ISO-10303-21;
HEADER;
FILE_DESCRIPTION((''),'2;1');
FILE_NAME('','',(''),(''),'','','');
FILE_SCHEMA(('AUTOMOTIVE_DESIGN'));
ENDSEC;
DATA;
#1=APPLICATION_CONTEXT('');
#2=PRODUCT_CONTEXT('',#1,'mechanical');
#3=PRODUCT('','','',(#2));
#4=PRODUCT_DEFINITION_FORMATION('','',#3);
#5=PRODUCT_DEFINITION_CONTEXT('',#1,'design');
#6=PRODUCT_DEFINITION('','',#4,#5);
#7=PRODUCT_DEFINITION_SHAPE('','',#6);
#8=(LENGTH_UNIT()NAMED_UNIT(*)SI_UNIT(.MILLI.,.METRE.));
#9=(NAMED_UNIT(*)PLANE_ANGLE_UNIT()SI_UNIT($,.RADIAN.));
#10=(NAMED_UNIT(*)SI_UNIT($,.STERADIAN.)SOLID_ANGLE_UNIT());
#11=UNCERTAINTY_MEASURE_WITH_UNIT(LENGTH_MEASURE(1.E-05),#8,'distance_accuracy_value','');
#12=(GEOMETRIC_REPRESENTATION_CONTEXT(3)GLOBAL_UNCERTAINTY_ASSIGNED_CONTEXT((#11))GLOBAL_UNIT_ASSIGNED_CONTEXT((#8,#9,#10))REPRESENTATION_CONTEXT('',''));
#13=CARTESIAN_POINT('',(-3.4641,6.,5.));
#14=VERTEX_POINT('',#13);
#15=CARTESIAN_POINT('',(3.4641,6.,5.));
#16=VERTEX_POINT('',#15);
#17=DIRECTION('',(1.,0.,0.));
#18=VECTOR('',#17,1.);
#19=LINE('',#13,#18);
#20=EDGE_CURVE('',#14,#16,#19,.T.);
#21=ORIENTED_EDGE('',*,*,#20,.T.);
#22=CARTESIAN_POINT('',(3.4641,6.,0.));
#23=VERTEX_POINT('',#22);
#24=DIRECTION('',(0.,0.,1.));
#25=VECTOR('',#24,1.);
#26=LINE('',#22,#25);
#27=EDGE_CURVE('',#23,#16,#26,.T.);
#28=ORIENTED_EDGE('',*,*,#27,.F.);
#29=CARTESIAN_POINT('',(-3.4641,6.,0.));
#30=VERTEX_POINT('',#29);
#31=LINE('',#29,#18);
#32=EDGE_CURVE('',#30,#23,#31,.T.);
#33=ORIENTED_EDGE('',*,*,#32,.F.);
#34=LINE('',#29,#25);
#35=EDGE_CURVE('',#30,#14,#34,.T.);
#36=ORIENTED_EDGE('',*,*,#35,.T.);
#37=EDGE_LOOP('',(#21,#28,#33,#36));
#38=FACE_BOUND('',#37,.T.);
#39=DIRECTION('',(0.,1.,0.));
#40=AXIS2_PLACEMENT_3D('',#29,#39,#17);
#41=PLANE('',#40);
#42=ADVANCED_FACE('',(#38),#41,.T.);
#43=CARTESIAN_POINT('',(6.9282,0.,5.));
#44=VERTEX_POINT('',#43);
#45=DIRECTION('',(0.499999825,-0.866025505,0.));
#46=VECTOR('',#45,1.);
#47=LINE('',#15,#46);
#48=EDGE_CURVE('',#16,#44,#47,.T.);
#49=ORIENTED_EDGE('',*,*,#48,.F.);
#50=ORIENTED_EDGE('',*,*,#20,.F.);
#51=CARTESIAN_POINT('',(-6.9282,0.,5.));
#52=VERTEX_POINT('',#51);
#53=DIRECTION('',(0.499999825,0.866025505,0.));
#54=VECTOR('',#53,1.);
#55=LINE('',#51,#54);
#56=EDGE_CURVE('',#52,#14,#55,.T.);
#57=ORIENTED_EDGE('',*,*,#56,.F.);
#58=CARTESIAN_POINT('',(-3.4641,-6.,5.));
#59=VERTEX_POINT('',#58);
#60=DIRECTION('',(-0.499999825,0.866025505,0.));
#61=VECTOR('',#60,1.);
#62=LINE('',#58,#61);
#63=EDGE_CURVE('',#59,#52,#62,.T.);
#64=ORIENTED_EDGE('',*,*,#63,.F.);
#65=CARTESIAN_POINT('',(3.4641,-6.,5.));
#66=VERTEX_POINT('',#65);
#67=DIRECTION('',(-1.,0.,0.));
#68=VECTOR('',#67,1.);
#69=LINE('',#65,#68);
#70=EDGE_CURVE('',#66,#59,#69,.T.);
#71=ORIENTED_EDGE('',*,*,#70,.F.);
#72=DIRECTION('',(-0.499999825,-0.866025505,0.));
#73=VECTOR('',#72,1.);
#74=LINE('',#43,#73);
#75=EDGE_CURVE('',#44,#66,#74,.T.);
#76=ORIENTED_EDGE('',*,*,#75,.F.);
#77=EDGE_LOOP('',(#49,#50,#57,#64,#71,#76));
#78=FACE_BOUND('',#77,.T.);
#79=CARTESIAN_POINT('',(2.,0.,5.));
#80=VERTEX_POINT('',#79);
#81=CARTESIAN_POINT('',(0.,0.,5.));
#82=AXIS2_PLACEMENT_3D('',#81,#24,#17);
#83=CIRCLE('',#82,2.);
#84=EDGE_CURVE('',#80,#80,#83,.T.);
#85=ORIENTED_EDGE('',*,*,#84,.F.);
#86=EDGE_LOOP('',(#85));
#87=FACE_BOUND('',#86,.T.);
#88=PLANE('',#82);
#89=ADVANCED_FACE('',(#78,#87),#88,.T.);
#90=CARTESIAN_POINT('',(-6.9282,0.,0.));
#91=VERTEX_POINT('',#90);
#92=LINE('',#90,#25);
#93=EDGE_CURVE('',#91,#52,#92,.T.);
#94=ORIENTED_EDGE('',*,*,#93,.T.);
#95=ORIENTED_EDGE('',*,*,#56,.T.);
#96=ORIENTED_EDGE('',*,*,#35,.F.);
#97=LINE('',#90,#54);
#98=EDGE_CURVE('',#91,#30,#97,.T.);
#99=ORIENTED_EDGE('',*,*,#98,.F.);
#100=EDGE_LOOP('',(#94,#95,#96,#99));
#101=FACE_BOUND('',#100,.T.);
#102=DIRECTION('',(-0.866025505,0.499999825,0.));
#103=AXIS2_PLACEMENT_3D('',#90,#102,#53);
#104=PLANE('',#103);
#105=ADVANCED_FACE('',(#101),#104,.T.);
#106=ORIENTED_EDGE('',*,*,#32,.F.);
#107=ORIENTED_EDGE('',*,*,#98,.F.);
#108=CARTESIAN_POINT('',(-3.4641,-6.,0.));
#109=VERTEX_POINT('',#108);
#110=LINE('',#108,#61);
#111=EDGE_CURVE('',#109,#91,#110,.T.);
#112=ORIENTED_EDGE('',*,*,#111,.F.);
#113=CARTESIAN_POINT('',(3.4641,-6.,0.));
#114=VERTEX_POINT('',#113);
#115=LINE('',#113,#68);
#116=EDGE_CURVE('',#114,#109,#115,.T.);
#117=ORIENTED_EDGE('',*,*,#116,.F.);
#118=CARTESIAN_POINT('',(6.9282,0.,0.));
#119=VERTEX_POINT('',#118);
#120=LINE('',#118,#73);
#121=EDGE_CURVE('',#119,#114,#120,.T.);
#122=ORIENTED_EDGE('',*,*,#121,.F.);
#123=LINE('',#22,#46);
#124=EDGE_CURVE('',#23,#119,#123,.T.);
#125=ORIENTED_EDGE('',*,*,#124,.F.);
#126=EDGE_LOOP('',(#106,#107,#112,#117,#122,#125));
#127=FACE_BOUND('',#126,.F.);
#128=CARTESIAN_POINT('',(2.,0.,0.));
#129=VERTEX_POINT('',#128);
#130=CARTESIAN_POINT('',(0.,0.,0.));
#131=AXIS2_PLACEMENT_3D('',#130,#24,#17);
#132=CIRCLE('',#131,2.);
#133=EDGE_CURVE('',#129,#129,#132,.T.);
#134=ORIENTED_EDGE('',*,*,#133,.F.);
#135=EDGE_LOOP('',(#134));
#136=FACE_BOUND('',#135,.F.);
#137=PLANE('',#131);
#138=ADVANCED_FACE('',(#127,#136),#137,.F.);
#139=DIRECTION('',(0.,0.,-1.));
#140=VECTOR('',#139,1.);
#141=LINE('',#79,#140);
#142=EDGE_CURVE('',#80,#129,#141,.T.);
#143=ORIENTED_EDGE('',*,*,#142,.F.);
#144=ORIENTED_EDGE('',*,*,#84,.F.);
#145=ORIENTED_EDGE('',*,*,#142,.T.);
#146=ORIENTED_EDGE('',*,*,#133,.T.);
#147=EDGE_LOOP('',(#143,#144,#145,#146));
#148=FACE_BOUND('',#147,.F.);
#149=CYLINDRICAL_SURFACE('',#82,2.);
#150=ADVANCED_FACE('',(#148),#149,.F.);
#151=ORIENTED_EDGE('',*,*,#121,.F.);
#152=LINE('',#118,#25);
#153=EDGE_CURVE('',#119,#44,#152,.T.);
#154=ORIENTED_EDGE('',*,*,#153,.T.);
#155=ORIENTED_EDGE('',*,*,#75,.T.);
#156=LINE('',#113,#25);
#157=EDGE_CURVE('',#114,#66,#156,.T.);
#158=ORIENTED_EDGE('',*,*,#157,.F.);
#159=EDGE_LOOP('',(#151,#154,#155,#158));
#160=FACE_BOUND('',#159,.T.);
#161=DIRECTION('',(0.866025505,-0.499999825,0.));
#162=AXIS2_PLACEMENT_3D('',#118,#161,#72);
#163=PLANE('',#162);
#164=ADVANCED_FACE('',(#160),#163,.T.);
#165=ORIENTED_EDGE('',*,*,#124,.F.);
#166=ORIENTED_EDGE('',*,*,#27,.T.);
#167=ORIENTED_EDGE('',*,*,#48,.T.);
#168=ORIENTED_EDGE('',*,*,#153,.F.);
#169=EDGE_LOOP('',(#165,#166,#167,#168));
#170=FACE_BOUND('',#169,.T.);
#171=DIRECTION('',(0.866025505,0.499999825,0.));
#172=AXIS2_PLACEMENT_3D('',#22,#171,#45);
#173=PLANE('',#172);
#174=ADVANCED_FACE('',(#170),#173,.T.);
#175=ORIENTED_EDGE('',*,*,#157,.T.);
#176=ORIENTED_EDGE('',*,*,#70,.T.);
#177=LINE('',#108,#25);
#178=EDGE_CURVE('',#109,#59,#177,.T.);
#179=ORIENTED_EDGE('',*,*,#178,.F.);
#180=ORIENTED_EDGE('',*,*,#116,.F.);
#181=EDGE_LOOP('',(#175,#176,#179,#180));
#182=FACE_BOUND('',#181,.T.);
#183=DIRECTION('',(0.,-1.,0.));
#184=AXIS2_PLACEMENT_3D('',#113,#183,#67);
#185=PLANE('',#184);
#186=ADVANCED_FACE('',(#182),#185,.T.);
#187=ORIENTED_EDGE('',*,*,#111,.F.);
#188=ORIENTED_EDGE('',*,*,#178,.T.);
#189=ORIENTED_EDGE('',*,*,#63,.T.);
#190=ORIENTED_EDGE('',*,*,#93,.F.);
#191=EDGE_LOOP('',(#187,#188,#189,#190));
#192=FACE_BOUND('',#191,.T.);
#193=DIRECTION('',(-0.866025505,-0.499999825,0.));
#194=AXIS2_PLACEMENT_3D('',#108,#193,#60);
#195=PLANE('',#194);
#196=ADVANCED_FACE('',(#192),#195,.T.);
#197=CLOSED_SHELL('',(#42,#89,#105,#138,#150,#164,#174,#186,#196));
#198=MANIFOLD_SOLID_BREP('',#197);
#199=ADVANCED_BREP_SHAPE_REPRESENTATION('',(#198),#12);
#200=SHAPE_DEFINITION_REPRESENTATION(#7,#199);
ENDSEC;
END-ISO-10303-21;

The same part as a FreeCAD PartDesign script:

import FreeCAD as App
import Part
import Sketcher

V = App.Vector
Q = App.Units.Quantity

doc = App.newDocument("Part")
params = doc.addObject("Spreadsheet::Sheet", "Params")
for row, (alias, value) in enumerate([
    ("pad1_length", "5 mm"),
    ("sketch2_diameter", "4 mm"),
    ("pocket1_length", "5 mm"),
], start=1):
    params.set(f"A{row}", alias)
    params.set(f"B{row}", "=" + value)
    params.setAlias(f"B{row}", alias)

body = doc.addObject("PartDesign::Body", "Body")

sketch1 = body.newObject("Sketcher::SketchObject", "Sketch")
sketch1.AttachmentSupport = (doc.getObject("XY_Plane"), [""])
sketch1.MapMode = "FlatFace"
sketch1.addGeometry([
    Part.LineSegment(V(3.4641, -6, 0), V(6.9282, 0, 0)),
    Part.LineSegment(V(6.9282, 0, 0), V(3.4641, 6, 0)),
    Part.LineSegment(V(3.4641, 6, 0), V(-3.4641, 6, 0)),
    Part.LineSegment(V(-3.4641, 6, 0), V(-6.9282, 0, 0)),
    Part.LineSegment(V(-6.9282, 0, 0), V(-3.4641, -6, 0)),
    Part.LineSegment(V(-3.4641, -6, 0), V(3.4641, -6, 0)),
], False)
sketch1.addConstraint([
    Sketcher.Constraint("Coincident", 0, 2, 1, 1),
    Sketcher.Constraint("Coincident", 1, 2, 2, 1),
    Sketcher.Constraint("Coincident", 2, 2, 3, 1),
    Sketcher.Constraint("Coincident", 3, 2, 4, 1),
    Sketcher.Constraint("Coincident", 4, 2, 5, 1),
    Sketcher.Constraint("Coincident", 5, 2, 0, 1),
    Sketcher.Constraint("Horizontal", 2),
    Sketcher.Constraint("Horizontal", 5),
    Sketcher.Constraint("Symmetric", 0, 2, 3, 2, -1, 1),
    Sketcher.Constraint("Symmetric", 1, 2, 4, 2, -1, 1),
    Sketcher.Constraint("PointOnObject", 0, 2, -1),
    Sketcher.Constraint("Parallel", 0, 3),
    Sketcher.Constraint("Vertical", 2, 2, 4, 2),
    Sketcher.Constraint("DistanceY", 4, 2, 2, 2, 12.0),
    Sketcher.Constraint("Angle", 0, Q("60 deg")),
    Sketcher.Constraint("DistanceX", 2, 2, 2, 1, 6.9282),
])
pad1 = body.newObject("PartDesign::Pad", "Pad")
pad1.Profile = sketch1
pad1.setExpression("Length", "Params.pad1_length")

sketch2 = body.newObject("Sketcher::SketchObject", "Sketch001")
sketch2.AttachmentSupport = (doc.getObject("XY_Plane"), [""])
sketch2.MapMode = "FlatFace"
sketch2.AttachmentOffset = App.Placement(V(0, 0, 5), App.Rotation())
sketch2.addGeometry(Part.Circle(V(0, 0, 0), V(0, 0, 1), 2), False)
sketch2.addConstraint([
    Sketcher.Constraint("Coincident", 0, 3, -1, 1),
    Sketcher.Constraint("Diameter", 0, 4.0),
])
sketch2.setExpression("Constraints[1]", "Params.sketch2_diameter")
pocket1 = body.newObject("PartDesign::Pocket", "Pocket")
pocket1.Profile = sketch2
pocket1.setExpression("Length", "Params.pocket1_length")

doc.recompute()
